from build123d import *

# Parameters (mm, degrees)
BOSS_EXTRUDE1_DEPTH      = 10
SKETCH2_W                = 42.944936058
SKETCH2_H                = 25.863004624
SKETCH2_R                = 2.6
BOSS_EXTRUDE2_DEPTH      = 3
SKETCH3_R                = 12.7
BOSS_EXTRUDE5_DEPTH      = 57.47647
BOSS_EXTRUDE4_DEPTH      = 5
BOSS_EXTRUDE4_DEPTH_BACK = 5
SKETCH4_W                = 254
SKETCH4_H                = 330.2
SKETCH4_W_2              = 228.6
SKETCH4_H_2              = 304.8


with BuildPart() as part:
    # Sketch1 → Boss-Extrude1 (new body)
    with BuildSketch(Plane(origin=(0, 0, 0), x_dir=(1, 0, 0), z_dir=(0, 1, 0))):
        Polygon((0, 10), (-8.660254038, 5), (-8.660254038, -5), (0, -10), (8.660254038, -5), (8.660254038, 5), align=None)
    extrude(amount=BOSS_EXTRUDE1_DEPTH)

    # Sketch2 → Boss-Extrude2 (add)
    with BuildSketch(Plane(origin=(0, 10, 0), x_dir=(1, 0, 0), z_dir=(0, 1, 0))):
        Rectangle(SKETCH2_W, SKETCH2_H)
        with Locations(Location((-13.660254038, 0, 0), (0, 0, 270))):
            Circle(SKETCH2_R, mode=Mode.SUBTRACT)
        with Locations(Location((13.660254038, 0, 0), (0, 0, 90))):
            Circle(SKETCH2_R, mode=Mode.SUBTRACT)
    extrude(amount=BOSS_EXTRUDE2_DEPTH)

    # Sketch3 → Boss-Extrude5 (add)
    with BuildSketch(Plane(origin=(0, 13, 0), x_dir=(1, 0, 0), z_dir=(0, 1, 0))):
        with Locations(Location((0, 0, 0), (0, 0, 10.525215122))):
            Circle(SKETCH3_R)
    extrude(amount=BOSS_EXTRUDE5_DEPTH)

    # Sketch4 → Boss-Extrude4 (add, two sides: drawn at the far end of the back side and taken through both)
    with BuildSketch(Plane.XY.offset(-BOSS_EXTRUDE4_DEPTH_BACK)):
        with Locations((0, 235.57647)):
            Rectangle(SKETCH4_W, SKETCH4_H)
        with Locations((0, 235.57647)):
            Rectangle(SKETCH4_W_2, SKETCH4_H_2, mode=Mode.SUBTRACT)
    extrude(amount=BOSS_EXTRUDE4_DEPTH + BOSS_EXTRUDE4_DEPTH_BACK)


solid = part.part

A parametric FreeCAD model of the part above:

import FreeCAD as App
import Part
import Sketcher
from FreeCAD import Vector
Q = App.Units.Quantity


def add_polygon(sketch, points):
    """Adds a closed chain of lines whose ends are joined by coincident constraints."""
    first, n = sketch.GeometryCount, len(points)
    for a, b in zip(points, points[1:] + points[:1]):
        sketch.addGeometry(Part.LineSegment(App.Vector(*a, 0), App.Vector(*b, 0)), False)
    for i in range(n):
        sketch.addConstraint(Sketcher.Constraint("Coincident", first + i, 2, first + (i + 1) % n, 1))

doc = App.newDocument("Part")
body = doc.addObject("PartDesign::Body", "Body")

sketch1 = doc.addObject("Sketcher::SketchObject", "Sketch")
body.addObject(sketch1)
sketch1.AttachmentSupport = (doc.XZ_Plane, [""])
sketch1.MapMode = "FlatFace"
add_polygon(sketch1, [(0, -10), (-9, -5), (-9, 5), (0, 10), (9, 5), (9, -5)])
sketch1.addConstraint([
    Sketcher.Constraint("Vertical", 1),
    Sketcher.Constraint("Vertical", 4),
    Sketcher.Constraint("Symmetric", 0, 2, 3, 2, -1, 1),
    Sketcher.Constraint("Symmetric", 2, 2, 5, 2, -1, 1),
    Sketcher.Constraint("PointOnObject", 2, 2, -2),
    Sketcher.Constraint("Parallel", 2, 5),
    Sketcher.Constraint("Horizontal", 1, 2, 3, 2),
    Sketcher.Constraint("Angle", 0, Q("150 deg")),
    Sketcher.Constraint("DistanceY", 1, 1, 1, 2, Q("10 mm")),
    Sketcher.Constraint("Distance", 0, Q("10 mm")),
])
pad1 = doc.addObject("PartDesign::Pad", "Pad")
body.addObject(pad1)
pad1.Profile = sketch1
pad1.Length = 10
pad1.Reversed = True

sketch2 = doc.addObject("Sketcher::SketchObject", "Sketch001")
body.addObject(sketch2)
sketch2.AttachmentSupport = (doc.XZ_Plane, [""])
sketch2.MapMode = "FlatFace"
sketch2.AttachmentOffset = App.Placement(Vector(0, 0, -10), App.Rotation())
add_polygon(sketch2, [(-21.5, -12.9), (-21.5, 12.9), (21.5, 12.9), (21.5, -12.9)])
sketch2.addGeometry(Part.Circle(Vector(-13.7, 0, 0), Vector(0, 0, 1), 2.6), False)
sketch2.addGeometry(Part.Circle(Vector(13.7, 0, 0), Vector(0, 0, 1), 2.6), False)
sketch2.addConstraint([
    Sketcher.Constraint("Vertical", 0),
    Sketcher.Constraint("Horizontal", 1),
    Sketcher.Constraint("Vertical", 2),
    Sketcher.Constraint("Horizontal", 3),
    Sketcher.Constraint("Equal", 4, 5),
    Sketcher.Constraint("Symmetric", 4, 3, 5, 3, -1, 1),
    Sketcher.Constraint("Symmetric", 0, 2, 2, 2, -1, 1),
    Sketcher.Constraint("PointOnObject", 4, 3, -1),
    Sketcher.Constraint("Diameter", 4, Q("5.2 mm")),
    Sketcher.Constraint("DistanceX", 1, 1, 1, 2, Q("42.944936 mm")),
    Sketcher.Constraint("DistanceY", 0, 1, 0, 2, Q("25.863005 mm")),
    Sketcher.Constraint("DistanceX", 4, 3, 5, 3, Q("27.320508 mm")),
])
pad2 = doc.addObject("PartDesign::Pad", "Pad001")
body.addObject(pad2)
pad2.Profile = sketch2
pad2.Length = 3
pad2.Reversed = True

sketch3 = doc.addObject("Sketcher::SketchObject", "Sketch002")
body.addObject(sketch3)
sketch3.AttachmentSupport = (doc.XZ_Plane, [""])
sketch3.MapMode = "FlatFace"
sketch3.AttachmentOffset = App.Placement(Vector(0, 0, -13), App.Rotation())
sketch3.addGeometry(Part.Circle(Vector(0, 0, 0), Vector(0, 0, 1), 13), False)
sketch3.addConstraint([
    Sketcher.Constraint("Coincident", 0, 3, -1, 1),
    Sketcher.Constraint("Diameter", 0, Q("1 in")),
])
pad3 = doc.addObject("PartDesign::Pad", "Pad002")
body.addObject(pad3)
pad3.Profile = sketch3
pad3.Length = 57.47647
pad3.Reversed = True

sketch4 = doc.addObject("Sketcher::SketchObject", "Sketch003")
body.addObject(sketch4)
sketch4.AttachmentSupport = (doc.XY_Plane, [""])
sketch4.MapMode = "FlatFace"
add_polygon(sketch4, [(-127, 401), (-127, 70), (127, 70), (127, 401)])
add_polygon(sketch4, [(114, 83), (-114, 83), (-114, 388), (114, 388)])
sketch4.addConstraint([
    Sketcher.Constraint("Vertical", 0),
    Sketcher.Constraint("Horizontal", 1),
    Sketcher.Constraint("Vertical", 2),
    Sketcher.Constraint("Horizontal", 3),
    Sketcher.Constraint("Horizontal", 4),
    Sketcher.Constraint("Vertical", 5),
    Sketcher.Constraint("Horizontal", 6),
    Sketcher.Constraint("Vertical", 7),
    Sketcher.Constraint("DistanceX", 1, 1, 1, 2, Q("10 in")),
    Sketcher.Constraint("DistanceX", 4, 2, 4, 1, Q("9 in")),
    Sketcher.Constraint("DistanceY", 0, 2, 0, 1, Q("13 in")),
    Sketcher.Constraint("DistanceY", 5, 1, 5, 2, Q("12 in")),
    Sketcher.Constraint("DistanceX", 0, 2, -1, 1, Q("5 in")),
    Sketcher.Constraint("DistanceX", 4, 2, -1, 1, Q("4.5 in")),
    Sketcher.Constraint("DistanceY", 0, 2, 4, 2, Q("0.5 in")),
    Sketcher.Constraint("DistanceY", -1, 1, 0, 2, Q("70.47647 mm")),
])
pad4 = doc.addObject("PartDesign::Pad", "Pad003")
body.addObject(pad4)
pad4.Profile = sketch4
pad4.Type = "TwoLengths"
pad4.Length = 5
pad4.Length2 = 5

doc.recompute()
